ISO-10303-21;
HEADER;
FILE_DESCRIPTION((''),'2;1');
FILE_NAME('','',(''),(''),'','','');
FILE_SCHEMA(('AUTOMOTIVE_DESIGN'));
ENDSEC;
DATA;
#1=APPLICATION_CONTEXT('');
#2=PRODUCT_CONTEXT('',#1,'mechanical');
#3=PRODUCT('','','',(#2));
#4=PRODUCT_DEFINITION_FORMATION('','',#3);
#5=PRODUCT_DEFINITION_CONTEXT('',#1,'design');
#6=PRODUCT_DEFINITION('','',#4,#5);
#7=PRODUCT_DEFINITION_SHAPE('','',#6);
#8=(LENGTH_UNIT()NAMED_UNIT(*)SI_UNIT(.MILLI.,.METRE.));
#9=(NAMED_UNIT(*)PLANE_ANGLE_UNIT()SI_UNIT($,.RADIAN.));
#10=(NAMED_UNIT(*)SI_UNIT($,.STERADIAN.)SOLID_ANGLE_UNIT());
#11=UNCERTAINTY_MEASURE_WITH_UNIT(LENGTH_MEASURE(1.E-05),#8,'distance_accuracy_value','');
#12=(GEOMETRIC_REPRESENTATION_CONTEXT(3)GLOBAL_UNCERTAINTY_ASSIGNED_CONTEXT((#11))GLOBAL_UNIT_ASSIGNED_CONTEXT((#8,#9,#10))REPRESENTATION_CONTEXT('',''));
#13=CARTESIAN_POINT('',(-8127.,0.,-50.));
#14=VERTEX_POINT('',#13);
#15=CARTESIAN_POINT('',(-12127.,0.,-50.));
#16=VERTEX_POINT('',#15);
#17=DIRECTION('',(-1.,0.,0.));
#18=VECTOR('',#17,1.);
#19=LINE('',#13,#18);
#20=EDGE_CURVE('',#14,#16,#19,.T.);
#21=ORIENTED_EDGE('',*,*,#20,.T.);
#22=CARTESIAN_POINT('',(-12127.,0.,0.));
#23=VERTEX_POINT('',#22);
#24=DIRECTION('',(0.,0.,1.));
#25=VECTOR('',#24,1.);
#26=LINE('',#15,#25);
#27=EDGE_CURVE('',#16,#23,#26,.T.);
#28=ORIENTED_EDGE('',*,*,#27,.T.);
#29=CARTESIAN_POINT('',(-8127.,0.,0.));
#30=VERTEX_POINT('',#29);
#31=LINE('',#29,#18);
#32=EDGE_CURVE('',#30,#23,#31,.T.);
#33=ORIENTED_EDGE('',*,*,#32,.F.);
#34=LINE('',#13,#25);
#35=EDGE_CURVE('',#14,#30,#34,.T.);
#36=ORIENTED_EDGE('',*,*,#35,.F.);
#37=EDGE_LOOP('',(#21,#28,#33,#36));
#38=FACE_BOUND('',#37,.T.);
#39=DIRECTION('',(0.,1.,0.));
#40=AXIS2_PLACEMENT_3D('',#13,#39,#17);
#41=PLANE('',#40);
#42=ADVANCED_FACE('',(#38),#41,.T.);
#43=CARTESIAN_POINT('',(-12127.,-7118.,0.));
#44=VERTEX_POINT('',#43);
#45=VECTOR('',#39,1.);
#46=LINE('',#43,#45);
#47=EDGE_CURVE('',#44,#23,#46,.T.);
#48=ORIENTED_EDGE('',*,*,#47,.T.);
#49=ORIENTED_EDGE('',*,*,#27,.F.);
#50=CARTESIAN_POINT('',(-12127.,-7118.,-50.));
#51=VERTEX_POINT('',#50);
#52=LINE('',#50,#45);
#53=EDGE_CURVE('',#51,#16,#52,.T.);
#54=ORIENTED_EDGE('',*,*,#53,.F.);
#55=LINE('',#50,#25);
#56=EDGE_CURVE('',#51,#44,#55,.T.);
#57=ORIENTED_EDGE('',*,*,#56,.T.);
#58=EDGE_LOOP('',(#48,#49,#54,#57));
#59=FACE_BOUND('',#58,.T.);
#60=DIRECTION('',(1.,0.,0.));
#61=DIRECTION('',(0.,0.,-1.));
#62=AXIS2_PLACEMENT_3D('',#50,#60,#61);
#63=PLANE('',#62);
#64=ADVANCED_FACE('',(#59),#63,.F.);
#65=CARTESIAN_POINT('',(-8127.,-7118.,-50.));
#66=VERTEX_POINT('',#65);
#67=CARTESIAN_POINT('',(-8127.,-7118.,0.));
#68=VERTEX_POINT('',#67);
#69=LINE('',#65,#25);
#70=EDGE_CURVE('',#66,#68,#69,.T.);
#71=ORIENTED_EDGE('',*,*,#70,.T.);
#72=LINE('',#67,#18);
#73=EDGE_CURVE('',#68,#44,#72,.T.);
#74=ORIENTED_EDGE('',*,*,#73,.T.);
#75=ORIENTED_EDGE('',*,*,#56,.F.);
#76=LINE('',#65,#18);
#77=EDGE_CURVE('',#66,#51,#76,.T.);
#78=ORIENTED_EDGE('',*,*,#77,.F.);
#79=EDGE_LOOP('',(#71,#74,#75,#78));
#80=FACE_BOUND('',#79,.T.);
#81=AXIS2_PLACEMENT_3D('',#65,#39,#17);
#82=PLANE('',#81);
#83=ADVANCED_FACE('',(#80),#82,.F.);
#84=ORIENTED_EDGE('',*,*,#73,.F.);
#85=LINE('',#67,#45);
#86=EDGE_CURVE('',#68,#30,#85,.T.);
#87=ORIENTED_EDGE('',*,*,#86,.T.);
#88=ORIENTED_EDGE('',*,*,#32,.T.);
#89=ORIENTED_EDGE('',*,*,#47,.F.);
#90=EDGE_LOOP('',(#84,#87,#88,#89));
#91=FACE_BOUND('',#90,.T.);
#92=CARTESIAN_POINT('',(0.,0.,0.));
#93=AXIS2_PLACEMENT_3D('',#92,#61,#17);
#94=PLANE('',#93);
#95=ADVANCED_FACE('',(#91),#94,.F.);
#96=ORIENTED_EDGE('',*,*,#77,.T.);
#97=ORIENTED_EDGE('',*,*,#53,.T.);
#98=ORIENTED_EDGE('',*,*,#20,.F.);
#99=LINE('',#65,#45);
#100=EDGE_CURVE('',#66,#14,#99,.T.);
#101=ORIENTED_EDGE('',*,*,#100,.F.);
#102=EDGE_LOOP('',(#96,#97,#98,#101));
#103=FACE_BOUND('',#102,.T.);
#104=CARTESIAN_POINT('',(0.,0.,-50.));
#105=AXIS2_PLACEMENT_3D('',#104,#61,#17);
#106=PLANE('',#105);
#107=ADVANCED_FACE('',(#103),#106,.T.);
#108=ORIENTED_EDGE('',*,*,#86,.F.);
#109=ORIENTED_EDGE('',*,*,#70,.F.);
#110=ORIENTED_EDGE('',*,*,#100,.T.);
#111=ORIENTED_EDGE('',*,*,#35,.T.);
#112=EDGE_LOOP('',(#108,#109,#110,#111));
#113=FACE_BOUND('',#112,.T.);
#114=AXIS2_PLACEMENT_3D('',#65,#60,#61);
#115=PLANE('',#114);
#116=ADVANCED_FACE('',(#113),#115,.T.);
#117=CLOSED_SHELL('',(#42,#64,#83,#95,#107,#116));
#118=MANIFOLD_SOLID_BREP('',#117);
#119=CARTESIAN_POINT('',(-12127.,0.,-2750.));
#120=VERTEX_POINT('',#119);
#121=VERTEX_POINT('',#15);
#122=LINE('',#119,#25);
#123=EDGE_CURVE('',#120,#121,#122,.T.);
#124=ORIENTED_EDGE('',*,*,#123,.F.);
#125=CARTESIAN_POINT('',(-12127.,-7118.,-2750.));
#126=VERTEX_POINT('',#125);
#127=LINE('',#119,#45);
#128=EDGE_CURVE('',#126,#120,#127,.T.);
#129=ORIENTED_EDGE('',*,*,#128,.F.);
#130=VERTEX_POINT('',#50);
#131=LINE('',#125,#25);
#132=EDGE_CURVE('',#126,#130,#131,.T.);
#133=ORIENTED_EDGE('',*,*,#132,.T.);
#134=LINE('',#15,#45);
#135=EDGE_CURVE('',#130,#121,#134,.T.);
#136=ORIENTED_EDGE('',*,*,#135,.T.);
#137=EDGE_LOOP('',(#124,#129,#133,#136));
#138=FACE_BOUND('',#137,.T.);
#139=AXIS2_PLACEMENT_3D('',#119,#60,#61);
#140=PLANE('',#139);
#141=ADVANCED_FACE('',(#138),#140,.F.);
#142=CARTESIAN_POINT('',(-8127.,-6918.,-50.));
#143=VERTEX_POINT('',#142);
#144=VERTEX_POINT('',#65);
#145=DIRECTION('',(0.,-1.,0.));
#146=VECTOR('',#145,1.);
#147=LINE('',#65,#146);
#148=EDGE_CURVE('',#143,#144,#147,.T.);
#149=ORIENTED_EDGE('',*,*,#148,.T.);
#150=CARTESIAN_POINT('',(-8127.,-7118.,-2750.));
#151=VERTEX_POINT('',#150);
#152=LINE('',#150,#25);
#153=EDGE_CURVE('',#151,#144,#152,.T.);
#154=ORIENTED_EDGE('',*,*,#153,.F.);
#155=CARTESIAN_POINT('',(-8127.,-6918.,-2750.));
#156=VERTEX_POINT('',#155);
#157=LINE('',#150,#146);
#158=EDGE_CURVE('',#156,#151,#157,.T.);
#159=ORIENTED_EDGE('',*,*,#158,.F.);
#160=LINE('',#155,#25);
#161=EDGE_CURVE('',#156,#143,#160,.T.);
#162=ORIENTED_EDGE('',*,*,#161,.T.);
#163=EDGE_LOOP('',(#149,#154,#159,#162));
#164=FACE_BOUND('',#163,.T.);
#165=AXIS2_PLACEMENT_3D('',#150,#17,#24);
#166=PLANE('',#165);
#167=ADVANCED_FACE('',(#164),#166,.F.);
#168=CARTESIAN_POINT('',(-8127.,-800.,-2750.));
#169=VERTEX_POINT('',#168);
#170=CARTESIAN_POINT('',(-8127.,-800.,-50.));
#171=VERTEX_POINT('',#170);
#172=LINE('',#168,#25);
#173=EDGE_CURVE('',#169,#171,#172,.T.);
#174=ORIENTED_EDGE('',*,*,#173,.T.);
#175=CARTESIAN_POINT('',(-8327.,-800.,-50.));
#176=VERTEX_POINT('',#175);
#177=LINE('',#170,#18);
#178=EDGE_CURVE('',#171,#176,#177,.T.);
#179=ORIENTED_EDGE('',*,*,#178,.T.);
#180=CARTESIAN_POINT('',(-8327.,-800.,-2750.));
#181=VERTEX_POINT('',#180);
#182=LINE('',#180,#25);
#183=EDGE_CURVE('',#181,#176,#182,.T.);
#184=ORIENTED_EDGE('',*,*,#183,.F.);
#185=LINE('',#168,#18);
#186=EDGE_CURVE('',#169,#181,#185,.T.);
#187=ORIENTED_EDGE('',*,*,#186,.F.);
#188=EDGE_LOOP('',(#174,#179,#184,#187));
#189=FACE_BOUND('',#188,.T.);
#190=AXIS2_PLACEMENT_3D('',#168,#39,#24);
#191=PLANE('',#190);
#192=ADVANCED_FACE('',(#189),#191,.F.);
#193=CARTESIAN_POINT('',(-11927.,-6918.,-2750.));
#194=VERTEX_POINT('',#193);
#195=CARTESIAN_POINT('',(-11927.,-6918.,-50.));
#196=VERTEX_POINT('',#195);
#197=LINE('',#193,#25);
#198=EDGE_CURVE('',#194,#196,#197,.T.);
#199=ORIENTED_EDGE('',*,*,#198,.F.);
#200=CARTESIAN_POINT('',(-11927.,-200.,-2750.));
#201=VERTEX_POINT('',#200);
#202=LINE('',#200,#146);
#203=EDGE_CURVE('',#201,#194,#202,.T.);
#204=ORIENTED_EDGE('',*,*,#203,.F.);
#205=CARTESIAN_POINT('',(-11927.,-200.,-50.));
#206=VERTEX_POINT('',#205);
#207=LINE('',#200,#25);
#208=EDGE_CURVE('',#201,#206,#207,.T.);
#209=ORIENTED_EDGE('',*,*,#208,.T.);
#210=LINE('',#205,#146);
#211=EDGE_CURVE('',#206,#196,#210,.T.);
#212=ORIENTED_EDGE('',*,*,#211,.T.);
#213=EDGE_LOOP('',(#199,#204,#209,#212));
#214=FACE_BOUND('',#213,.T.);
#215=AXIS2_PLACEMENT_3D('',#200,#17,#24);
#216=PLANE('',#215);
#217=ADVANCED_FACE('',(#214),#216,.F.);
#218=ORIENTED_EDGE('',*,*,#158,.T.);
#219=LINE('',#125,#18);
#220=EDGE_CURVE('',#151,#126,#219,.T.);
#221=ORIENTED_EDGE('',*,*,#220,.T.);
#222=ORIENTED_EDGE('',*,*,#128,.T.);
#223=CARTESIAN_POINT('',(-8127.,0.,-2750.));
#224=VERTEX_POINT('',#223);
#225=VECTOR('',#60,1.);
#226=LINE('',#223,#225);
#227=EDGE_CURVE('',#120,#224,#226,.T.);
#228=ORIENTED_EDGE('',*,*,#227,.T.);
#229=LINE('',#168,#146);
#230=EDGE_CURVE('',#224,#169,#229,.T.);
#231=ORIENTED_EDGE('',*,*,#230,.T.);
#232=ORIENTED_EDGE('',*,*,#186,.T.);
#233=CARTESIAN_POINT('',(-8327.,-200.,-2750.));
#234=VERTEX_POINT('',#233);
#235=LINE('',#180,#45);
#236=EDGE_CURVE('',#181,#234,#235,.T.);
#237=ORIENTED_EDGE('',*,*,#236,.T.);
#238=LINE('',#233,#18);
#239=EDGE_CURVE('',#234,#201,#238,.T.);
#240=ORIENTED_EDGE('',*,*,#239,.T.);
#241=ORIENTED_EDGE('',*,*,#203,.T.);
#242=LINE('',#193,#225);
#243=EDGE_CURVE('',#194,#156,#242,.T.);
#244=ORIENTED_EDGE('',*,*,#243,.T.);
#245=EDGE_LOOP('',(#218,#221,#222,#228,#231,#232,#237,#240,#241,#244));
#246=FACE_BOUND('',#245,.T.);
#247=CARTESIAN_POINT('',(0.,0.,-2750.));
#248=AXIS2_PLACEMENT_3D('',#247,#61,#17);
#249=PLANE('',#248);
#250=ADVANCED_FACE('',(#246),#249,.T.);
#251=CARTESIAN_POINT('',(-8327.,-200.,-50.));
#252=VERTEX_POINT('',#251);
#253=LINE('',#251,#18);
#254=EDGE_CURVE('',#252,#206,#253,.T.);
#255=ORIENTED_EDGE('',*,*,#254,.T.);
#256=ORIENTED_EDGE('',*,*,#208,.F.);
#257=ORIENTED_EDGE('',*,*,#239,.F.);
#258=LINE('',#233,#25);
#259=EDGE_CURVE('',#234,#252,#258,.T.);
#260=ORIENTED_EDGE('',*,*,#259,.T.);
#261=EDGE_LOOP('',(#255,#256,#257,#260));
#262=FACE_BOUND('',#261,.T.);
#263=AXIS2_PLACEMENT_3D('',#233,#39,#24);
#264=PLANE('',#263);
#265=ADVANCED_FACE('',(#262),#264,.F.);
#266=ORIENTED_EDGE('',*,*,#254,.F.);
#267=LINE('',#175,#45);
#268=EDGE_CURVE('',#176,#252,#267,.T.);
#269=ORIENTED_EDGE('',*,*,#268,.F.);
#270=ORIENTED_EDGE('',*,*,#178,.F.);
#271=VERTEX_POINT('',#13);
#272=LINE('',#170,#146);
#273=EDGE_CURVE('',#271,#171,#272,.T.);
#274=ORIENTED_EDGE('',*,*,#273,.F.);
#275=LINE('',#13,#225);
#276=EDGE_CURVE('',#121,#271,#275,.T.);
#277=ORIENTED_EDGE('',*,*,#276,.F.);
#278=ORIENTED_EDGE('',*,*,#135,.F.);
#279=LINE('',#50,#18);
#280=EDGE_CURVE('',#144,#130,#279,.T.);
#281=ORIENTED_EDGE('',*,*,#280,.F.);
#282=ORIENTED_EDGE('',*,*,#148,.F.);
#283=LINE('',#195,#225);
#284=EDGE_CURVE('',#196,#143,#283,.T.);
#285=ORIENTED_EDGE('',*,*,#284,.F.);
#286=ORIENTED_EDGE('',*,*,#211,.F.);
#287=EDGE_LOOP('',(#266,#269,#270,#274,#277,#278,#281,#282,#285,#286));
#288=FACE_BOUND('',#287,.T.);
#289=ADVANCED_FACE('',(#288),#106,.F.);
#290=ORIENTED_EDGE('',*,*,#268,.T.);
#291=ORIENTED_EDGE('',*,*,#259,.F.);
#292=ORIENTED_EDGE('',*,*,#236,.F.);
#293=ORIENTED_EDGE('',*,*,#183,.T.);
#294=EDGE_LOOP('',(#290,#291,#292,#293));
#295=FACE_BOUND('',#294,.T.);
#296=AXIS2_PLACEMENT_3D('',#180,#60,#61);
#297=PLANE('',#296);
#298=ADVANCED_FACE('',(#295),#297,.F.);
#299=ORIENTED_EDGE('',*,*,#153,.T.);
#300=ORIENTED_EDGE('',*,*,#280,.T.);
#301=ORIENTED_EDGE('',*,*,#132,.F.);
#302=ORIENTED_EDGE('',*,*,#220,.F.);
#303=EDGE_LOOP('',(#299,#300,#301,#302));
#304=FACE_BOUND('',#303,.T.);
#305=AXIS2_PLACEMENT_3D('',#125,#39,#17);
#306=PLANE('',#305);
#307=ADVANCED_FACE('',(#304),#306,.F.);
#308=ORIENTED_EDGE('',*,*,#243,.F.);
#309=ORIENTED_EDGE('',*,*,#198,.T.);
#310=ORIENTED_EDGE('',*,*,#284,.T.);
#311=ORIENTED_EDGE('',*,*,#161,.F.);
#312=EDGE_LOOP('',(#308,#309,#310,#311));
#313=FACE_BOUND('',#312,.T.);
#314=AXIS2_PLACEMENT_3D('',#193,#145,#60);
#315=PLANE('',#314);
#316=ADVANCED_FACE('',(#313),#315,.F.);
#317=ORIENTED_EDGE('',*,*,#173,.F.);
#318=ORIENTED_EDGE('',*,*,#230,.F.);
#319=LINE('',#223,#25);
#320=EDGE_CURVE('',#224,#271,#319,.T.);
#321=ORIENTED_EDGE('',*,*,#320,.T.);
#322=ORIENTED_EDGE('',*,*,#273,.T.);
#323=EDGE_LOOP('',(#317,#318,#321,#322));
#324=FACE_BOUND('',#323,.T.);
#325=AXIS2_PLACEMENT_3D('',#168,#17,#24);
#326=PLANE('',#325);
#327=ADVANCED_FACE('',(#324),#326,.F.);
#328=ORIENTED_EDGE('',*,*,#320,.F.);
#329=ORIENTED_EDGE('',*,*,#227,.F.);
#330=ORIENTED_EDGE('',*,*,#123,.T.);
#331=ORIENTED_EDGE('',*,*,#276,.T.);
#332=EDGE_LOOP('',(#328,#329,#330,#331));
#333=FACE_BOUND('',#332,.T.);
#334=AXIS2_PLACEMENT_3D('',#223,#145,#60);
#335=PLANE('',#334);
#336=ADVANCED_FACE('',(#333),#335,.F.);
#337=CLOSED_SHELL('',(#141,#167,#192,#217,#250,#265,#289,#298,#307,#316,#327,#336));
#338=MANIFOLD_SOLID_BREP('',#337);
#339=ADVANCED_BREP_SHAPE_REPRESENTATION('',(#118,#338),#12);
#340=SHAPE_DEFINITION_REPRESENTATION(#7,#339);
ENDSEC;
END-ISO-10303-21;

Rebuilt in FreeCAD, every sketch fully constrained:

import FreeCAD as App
import Part
import Sketcher

doc = App.newDocument("Part")
params = doc.addObject("Spreadsheet::Sheet", "Params")
for row, (alias, value) in enumerate([
    ("sketch1_width", "4000 mm"),
    ("sketch1_height", "7118 mm"),
    ("pad1_length", "50 mm"),
    ("sketch2_width", "200 mm"),
    ("sketch2_width2", "3600 mm"),
    ("sketch2_width3", "4000 mm"),
    ("sketch2_height", "800 mm"),
    ("sketch2_height2", "600 mm"),
    ("pad2_length", "2700 mm"),
], start=1):
    params.set(f"A{row}", alias)
    params.set(f"B{row}", "=" + value)
    params.setAlias(f"B{row}", alias)

body = doc.addObject("PartDesign::Body", "Body")

# Sketch on XY plane
sketch1 = doc.addObject("Sketcher::SketchObject", "Sketch")
body.addObject(sketch1)
sketch1.AttachmentSupport = (doc.XY_Plane, [""])
sketch1.MapMode = "FlatFace"
sketch1.addGeometry([
    Part.LineSegment(App.Vector(-12127, 0, 0), App.Vector(-12127, -7118, 0)),
    Part.LineSegment(App.Vector(-12127, -7118, 0), App.Vector(-8127, -7118, 0)),
    Part.LineSegment(App.Vector(-8127, -7118, 0), App.Vector(-8127, 0, 0)),
    Part.LineSegment(App.Vector(-8127, 0, 0), App.Vector(-12127, 0, 0)),
], False)
sketch1.addConstraint([
    Sketcher.Constraint("Coincident", 0, 2, 1, 1),
    Sketcher.Constraint("Coincident", 1, 2, 2, 1),
    Sketcher.Constraint("Coincident", 2, 2, 3, 1),
    Sketcher.Constraint("Coincident", 3, 2, 0, 1),
    Sketcher.Constraint("Vertical", 0),
    Sketcher.Constraint("Horizontal", 1),
    Sketcher.Constraint("Vertical", 2),
    Sketcher.Constraint("Horizontal", 3),
    Sketcher.Constraint("PointOnObject", 2, 2, -1),
    Sketcher.Constraint("DistanceX", 1, 1, 1, 2, 4000.0),
    Sketcher.Constraint("DistanceY", 0, 2, 0, 1, 7118.0),
    Sketcher.Constraint("DistanceX", 0, 2, -1, 1, 12127.0),
])
sketch1.setExpression("Constraints[9]", "Params.sketch1_width")
sketch1.setExpression("Constraints[10]", "Params.sketch1_height")
pad1 = doc.addObject("PartDesign::Pad", "Pad")
body.addObject(pad1)
pad1.Profile = sketch1
pad1.setExpression("Length", "Params.pad1_length")
pad1.Reversed = True
body2 = doc.addObject("PartDesign::Body", "Body001")

# Sketch on XY plane
sketch2 = doc.addObject("Sketcher::SketchObject", "Sketch001")
body2.addObject(sketch2)
sketch2.AttachmentSupport = (doc.getObject("XY_Plane001"), [""])
sketch2.MapMode = "FlatFace"
sketch2.AttachmentOffset = App.Placement(App.Vector(0, 0, -50), App.Rotation())
sketch2.addGeometry([
    Part.LineSegment(App.Vector(-8127, 0, 0), App.Vector(-8127, -800, 0)),  # 0
    Part.LineSegment(App.Vector(-8127, -800, 0), App.Vector(-8327, -800, 0)),  # 1
    Part.LineSegment(App.Vector(-8327, -800, 0), App.Vector(-8327, -200, 0)),  # 2
    Part.LineSegment(App.Vector(-8327, -200, 0), App.Vector(-11927, -200, 0)),  # 3
    Part.LineSegment(App.Vector(-11927, -200, 0), App.Vector(-11927, -6918, 0)),  # 4
    Part.LineSegment(App.Vector(-11927, -6918, 0), App.Vector(-8127, -6918, 0)),  # 5
    Part.LineSegment(App.Vector(-8127, -6918, 0), App.Vector(-8127, -7118, 0)),  # 6
    Part.LineSegment(App.Vector(-8127, -7118, 0), App.Vector(-12127, -7118, 0)),  # 7
    Part.LineSegment(App.Vector(-12127, -7118, 0), App.Vector(-12127, 0, 0)),  # 8
    Part.LineSegment(App.Vector(-12127, 0, 0), App.Vector(-8127, 0, 0)),  # 9
], False)
sketch2.addConstraint([
    Sketcher.Constraint("Coincident", 0, 2, 1, 1),
    Sketcher.Constraint("Coincident", 1, 2, 2, 1),
    Sketcher.Constraint("Coincident", 2, 2, 3, 1),
    Sketcher.Constraint("Coincident", 3, 2, 4, 1),
    Sketcher.Constraint("Coincident", 4, 2, 5, 1),
    Sketcher.Constraint("Coincident", 5, 2, 6, 1),
    Sketcher.Constraint("Coincident", 6, 2, 7, 1),
    Sketcher.Constraint("Coincident", 7, 2, 8, 1),
    Sketcher.Constraint("Coincident", 8, 2, 9, 1),
    Sketcher.Constraint("Coincident", 9, 2, 0, 1),
    Sketcher.Constraint("Vertical", 0),
    Sketcher.Constraint("Horizontal", 1),
    Sketcher.Constraint("Vertical", 2),
    Sketcher.Constraint("Horizontal", 3),
    Sketcher.Constraint("Vertical", 4),
    Sketcher.Constraint("Horizontal", 5),
    Sketcher.Constraint("Vertical", 6),
    Sketcher.Constraint("Horizontal", 7),
    Sketcher.Constraint("Vertical", 8),
    Sketcher.Constraint("Horizontal", 9),
    Sketcher.Constraint("PointOnObject", 8, 2, -1),
    Sketcher.Constraint("Vertical", 0, 2, 5, 2),
    Sketcher.Constraint("Equal", 1, 6),
    Sketcher.Constraint("DistanceX", 1, 2, 1, 1, 200.0),
    Sketcher.Constraint("DistanceX", 3, 2, 3, 1, 3600.0),
    Sketcher.Constraint("DistanceX", 7, 2, 7, 1, 4000.0),
    Sketcher.Constraint("DistanceY", 0, 2, 0, 1, 800.0),
    Sketcher.Constraint("DistanceY", 2, 1, 2, 2, 600.0),
    Sketcher.Constraint("DistanceY", 4, 2, 4, 1, 6718.0),
    Sketcher.Constraint("DistanceX", 0, 2, -1, 1, 8127.0),
])
sketch2.setExpression("Constraints[23]", "Params.sketch2_width")
sketch2.setExpression("Constraints[24]", "Params.sketch2_width2")
sketch2.setExpression("Constraints[25]", "Params.sketch2_width3")
sketch2.setExpression("Constraints[26]", "Params.sketch2_height")
sketch2.setExpression("Constraints[27]", "Params.sketch2_height2")
pad2 = doc.addObject("PartDesign::Pad", "Pad001")
body2.addObject(pad2)
pad2.Profile = sketch2
pad2.setExpression("Length", "Params.pad2_length")
pad2.Reversed = True

doc.recompute()
